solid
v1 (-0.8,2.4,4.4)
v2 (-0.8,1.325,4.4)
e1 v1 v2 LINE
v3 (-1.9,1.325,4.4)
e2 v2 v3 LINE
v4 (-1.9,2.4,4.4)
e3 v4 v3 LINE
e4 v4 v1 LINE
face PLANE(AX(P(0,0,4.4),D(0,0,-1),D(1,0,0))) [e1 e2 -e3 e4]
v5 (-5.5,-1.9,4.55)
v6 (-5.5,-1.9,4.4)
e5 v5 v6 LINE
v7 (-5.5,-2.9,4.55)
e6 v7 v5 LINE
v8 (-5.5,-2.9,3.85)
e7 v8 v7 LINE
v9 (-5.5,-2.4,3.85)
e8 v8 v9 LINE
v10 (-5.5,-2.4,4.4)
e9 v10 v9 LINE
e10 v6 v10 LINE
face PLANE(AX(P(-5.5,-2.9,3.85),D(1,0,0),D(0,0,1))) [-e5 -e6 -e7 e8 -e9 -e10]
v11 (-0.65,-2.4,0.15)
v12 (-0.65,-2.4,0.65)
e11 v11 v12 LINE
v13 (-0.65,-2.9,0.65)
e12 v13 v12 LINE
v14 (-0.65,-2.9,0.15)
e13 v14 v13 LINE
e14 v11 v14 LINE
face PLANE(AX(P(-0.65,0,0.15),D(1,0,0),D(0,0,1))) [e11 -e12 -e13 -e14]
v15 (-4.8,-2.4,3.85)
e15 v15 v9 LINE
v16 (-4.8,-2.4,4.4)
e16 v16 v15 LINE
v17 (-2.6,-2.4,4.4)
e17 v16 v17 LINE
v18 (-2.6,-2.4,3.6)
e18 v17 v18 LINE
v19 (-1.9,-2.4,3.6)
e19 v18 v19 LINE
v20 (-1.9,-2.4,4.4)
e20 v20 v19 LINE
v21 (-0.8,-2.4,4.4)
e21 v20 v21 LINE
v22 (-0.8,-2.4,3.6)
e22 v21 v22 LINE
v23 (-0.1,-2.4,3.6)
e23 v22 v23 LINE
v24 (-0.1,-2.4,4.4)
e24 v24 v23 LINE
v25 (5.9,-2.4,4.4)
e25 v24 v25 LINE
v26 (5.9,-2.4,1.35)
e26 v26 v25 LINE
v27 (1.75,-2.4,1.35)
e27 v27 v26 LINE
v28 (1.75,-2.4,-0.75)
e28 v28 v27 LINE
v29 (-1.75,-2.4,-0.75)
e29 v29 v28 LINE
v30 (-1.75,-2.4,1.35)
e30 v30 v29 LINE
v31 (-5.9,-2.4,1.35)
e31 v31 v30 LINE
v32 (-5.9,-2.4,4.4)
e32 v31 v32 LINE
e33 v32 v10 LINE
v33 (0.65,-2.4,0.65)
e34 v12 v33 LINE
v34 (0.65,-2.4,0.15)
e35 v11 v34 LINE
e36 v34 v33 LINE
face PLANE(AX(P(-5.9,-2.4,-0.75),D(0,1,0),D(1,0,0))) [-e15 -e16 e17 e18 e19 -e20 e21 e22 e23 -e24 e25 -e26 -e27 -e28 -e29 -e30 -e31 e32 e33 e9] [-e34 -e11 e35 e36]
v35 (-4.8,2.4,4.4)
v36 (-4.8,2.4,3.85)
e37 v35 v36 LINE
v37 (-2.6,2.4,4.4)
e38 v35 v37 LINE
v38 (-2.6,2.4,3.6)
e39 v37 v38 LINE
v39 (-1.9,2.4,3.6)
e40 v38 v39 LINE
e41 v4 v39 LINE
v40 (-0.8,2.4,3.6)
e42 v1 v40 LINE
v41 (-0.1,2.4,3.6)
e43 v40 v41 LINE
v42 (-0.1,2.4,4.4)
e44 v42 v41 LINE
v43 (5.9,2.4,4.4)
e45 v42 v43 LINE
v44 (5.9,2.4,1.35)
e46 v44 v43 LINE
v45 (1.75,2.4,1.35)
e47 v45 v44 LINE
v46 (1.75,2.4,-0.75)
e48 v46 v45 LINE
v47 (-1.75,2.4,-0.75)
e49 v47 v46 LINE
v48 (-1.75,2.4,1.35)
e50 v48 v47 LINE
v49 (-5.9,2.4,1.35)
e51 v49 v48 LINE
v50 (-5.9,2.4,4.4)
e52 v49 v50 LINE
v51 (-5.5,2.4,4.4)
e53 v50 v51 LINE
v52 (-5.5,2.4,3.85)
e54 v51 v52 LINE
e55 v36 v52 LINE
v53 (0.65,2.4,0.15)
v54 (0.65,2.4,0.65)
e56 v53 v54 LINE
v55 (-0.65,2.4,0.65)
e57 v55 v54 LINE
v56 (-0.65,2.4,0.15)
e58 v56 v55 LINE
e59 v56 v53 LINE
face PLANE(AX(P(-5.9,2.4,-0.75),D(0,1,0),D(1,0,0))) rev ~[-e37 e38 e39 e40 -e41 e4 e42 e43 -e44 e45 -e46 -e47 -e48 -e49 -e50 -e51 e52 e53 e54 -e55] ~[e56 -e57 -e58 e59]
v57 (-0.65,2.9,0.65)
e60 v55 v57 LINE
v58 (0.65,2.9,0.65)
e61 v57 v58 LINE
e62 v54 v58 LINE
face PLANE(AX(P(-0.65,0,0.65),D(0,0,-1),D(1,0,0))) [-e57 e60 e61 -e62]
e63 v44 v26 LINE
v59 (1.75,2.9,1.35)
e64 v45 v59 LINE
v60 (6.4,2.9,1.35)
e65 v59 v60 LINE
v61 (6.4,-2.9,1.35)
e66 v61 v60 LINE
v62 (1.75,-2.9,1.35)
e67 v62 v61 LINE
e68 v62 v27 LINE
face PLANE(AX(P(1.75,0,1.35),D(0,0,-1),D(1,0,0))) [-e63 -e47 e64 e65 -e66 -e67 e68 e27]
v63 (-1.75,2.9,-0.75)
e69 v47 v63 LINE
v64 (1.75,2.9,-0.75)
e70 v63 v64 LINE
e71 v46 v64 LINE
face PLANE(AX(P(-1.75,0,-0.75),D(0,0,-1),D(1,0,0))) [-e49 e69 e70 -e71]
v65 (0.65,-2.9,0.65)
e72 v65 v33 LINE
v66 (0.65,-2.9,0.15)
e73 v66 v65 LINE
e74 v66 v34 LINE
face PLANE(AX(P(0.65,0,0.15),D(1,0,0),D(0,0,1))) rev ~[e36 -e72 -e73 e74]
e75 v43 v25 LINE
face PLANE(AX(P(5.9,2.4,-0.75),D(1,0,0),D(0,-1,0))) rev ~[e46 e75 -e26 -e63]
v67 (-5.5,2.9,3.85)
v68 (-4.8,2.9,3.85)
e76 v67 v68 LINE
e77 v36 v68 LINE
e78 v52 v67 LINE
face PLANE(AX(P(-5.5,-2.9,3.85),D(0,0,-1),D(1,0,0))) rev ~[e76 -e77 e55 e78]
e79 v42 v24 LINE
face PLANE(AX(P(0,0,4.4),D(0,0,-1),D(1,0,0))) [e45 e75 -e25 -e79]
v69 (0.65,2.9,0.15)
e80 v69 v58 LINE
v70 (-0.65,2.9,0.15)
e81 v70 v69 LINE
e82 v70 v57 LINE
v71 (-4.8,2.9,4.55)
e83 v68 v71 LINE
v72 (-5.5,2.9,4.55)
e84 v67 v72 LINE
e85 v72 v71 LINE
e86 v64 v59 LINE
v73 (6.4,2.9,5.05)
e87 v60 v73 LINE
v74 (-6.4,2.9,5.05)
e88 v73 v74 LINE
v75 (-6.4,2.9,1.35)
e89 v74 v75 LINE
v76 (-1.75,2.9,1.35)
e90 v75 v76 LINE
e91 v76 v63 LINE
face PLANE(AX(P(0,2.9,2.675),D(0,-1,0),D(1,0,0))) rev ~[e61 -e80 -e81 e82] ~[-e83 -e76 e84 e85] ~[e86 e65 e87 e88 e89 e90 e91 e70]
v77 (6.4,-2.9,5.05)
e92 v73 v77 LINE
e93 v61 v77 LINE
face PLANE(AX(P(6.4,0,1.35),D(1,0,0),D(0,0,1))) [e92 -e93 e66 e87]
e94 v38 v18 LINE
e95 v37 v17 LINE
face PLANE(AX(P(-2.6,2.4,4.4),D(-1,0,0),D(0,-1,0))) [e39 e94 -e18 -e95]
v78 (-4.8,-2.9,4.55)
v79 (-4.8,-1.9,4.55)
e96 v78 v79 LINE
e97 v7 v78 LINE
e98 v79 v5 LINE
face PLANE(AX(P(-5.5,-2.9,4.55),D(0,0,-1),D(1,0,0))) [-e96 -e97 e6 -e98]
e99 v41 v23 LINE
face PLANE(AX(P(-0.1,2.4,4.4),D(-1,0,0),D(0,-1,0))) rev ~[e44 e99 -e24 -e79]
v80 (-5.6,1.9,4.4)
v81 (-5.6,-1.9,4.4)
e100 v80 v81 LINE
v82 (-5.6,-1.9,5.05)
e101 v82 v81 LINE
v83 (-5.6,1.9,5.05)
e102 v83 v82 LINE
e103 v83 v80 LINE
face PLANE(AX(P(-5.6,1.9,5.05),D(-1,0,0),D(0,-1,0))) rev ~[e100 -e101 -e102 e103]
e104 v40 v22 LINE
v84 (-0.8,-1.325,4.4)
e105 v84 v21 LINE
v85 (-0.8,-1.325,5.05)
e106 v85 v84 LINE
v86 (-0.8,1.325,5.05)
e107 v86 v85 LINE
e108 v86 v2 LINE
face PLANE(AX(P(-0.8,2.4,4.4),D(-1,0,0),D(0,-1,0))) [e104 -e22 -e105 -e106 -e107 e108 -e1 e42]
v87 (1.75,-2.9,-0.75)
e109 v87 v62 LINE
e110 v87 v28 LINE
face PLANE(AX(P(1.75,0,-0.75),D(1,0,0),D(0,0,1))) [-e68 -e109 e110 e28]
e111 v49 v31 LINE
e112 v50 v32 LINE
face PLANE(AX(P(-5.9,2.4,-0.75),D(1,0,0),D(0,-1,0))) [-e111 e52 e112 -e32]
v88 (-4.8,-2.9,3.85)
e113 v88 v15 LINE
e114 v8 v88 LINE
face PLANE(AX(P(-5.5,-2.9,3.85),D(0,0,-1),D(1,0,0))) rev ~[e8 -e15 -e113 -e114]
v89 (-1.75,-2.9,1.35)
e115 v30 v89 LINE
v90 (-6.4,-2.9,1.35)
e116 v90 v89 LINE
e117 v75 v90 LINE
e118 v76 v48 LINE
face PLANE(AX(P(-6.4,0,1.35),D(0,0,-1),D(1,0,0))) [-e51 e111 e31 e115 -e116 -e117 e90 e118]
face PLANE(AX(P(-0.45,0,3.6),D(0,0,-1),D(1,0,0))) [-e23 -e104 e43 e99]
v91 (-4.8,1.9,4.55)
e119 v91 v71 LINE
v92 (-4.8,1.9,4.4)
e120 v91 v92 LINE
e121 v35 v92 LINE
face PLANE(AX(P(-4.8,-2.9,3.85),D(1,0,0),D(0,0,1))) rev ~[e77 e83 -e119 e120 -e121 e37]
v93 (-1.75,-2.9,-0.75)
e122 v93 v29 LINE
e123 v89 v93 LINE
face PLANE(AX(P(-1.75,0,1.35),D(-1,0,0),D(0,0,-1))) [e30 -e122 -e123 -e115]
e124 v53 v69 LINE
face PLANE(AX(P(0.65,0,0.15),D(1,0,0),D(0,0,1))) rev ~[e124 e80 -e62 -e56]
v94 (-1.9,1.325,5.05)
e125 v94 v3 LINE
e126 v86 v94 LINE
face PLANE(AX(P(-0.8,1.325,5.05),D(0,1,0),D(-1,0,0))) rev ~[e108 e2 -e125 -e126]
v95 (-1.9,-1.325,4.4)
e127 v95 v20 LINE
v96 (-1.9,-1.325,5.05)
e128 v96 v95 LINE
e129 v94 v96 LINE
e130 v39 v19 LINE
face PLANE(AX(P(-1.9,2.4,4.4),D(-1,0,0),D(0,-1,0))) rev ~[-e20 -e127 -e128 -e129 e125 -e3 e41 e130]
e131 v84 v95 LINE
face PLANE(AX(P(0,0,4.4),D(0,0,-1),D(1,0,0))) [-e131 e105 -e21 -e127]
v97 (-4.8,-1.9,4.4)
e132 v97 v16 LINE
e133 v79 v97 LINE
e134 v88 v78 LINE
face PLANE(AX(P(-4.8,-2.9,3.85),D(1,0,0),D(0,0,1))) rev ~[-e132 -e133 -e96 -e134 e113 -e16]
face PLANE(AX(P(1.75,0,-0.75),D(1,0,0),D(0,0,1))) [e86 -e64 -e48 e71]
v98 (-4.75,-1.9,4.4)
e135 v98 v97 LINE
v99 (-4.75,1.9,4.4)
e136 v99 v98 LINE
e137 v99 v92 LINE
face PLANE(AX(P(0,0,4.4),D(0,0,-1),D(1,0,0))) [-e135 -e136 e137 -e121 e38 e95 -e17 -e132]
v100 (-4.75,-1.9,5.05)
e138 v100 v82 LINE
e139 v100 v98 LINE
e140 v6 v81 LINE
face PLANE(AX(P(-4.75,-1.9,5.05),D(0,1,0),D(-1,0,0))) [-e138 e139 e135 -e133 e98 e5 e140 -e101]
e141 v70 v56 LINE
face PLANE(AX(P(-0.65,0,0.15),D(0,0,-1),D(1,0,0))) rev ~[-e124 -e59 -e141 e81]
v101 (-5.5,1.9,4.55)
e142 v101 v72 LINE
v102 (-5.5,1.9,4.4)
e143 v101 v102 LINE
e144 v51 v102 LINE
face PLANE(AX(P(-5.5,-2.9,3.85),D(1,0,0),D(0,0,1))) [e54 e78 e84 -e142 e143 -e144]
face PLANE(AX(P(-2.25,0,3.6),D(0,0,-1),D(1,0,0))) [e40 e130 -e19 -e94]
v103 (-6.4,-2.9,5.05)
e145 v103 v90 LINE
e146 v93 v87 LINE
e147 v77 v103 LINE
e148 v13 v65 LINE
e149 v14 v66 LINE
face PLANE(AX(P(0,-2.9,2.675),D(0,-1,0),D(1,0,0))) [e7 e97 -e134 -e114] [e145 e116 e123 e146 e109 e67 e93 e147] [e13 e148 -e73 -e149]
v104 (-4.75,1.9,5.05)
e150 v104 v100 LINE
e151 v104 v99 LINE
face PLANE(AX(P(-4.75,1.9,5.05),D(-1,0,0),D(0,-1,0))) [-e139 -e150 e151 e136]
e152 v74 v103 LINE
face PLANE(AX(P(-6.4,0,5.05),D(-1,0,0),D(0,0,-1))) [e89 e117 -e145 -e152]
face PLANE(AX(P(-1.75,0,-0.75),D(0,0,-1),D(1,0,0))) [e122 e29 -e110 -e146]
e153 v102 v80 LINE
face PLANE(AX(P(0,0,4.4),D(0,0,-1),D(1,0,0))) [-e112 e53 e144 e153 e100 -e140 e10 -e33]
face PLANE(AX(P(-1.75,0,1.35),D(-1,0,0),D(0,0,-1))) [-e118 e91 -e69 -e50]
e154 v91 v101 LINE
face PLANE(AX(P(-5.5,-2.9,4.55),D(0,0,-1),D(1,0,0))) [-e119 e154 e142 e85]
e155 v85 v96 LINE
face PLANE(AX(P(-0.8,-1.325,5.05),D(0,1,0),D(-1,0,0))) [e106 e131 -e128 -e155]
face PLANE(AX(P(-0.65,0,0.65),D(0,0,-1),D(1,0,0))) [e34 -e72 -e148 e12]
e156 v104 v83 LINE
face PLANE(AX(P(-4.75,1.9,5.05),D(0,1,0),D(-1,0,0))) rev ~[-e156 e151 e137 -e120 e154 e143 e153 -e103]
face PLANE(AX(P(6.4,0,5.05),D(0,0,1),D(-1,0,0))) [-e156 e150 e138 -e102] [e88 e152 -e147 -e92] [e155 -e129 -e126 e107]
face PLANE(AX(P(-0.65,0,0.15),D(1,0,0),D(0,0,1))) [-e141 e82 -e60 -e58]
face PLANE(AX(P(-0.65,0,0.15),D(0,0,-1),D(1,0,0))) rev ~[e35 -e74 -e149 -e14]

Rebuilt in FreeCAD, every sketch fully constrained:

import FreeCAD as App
import Part
import Sketcher

V = App.Vector


def add_polygon(sketch, points):
    """Adds a closed chain of lines whose ends are joined by coincident constraints."""
    first, n = sketch.GeometryCount, len(points)
    for a, b in zip(points, points[1:] + points[:1]):
        sketch.addGeometry(Part.LineSegment(App.Vector(*a, 0), App.Vector(*b, 0)), False)
    for i in range(n):
        sketch.addConstraint(Sketcher.Constraint("Coincident", first + i, 2, first + (i + 1) % n, 1))

doc = App.newDocument("Part")
params = doc.addObject("Spreadsheet::Sheet", "Params")
for row, (alias, value) in enumerate([
    ("sketch1_width", "12.8 mm"),
    ("sketch1_width2", "3.5 mm"),
    ("sketch1_width3", "1.3 mm"),
    ("sketch1_height", "3.7 mm"),
    ("sketch1_height2", "2.1 mm"),
    ("pad1_length", "5.8 mm"),
    ("sketch2_width", "11.8 mm"),
    ("sketch2_height", "4.8 mm"),
    ("pocket1_length", "5.15 mm"),
    ("sketch3_width", "1.1 mm"),
    ("sketch3_height", "2.65 mm"),
    ("pocket2_length", "0.65 mm"),
    ("sketch4_width", "0.7 mm"),
    ("sketch4_height", "4.8 mm"),
    ("pad2_length", "0.8 mm"),
    ("sketch5_height", "3.8 mm"),
    ("sketch5_width", "0.85 mm"),
    ("pocket3_length", "0.65 mm"),
    ("sketch6_width", "0.7 mm"),
], start=1):
    params.set(f"A{row}", alias)
    params.set(f"B{row}", "=" + value)
    params.setAlias(f"B{row}", alias)

body = doc.addObject("PartDesign::Body", "Body")

sketch1 = doc.addObject("Sketcher::SketchObject", "Sketch")
body.addObject(sketch1)
sketch1.AttachmentSupport = (doc.XZ_Plane, [""])
sketch1.MapMode = "FlatFace"
add_polygon(sketch1, [(6.4, 1.4), (6.4, 5), (-6.4, 5), (-6.4, 1.4), (-1.8, 1.4), (-1.8, -0.8), (1.8, -0.8), (1.8, 1.4)])
add_polygon(sketch1, [(0.7, 0.1), (-0.7, 0.1), (-0.7, 0.7), (0.7, 0.7)])
sketch1.addConstraint(Sketcher.Constraint("Vertical", 0))
sketch1.addConstraint(Sketcher.Constraint("Horizontal", 1))
sketch1.addConstraint(Sketcher.Constraint("Vertical", 2))
sketch1.addConstraint(Sketcher.Constraint("Horizontal", 3))
sketch1.addConstraint(Sketcher.Constraint("Vertical", 4))
sketch1.addConstraint(Sketcher.Constraint("Horizontal", 5))
sketch1.addConstraint(Sketcher.Constraint("Vertical", 6))
sketch1.addConstraint(Sketcher.Constraint("Horizontal", 7))
sketch1.addConstraint(Sketcher.Constraint("Horizontal", 8))
sketch1.addConstraint(Sketcher.Constraint("Vertical", 9))
sketch1.addConstraint(Sketcher.Constraint("Horizontal", 10))
sketch1.addConstraint(Sketcher.Constraint("Vertical", 11))
sketch1.addConstraint(Sketcher.Constraint("Symmetric", 3, 2, 6, 2, -2))
sketch1.addConstraint(Sketcher.Constraint("Equal", 3, 7))
sketch1.addConstraint(Sketcher.Constraint("DistanceX", 1, 2, 1, 1, 12.8))
sketch1.addConstraint(Sketcher.Constraint("DistanceX", 5, 1, 5, 2, 3.5))
sketch1.addConstraint(Sketcher.Constraint("DistanceX", 8, 2, 8, 1, 1.3))
sketch1.addConstraint(Sketcher.Constraint("DistanceY", 0, 1, 0, 2, 3.7))
sketch1.addConstraint(Sketcher.Constraint("DistanceY", 4, 2, 4, 1, 2.1))
sketch1.addConstraint(Sketcher.Constraint("DistanceY", 9, 1, 9, 2, 0.5))
sketch1.addConstraint(Sketcher.Constraint("DistanceX", 4, 2, 8, 2, 1.1))
sketch1.addConstraint(Sketcher.Constraint("DistanceY", 4, 2, 8, 2, 0.9))
sketch1.addConstraint(Sketcher.Constraint("DistanceY", -1, 1, 0, 2, 5.05))
sketch1.setExpression("Constraints[26]", "Params.sketch1_width")
sketch1.setExpression("Constraints[27]", "Params.sketch1_width2")
sketch1.setExpression("Constraints[28]", "Params.sketch1_width3")
sketch1.setExpression("Constraints[29]", "Params.sketch1_height")
sketch1.setExpression("Constraints[30]", "Params.sketch1_height2")
pad1 = doc.addObject("PartDesign::Pad", "Pad")
body.addObject(pad1)
pad1.Profile = sketch1
pad1.setExpression("Length", "Params.pad1_length")
pad1.Midplane = True

sketch2 = doc.addObject("Sketcher::SketchObject", "Sketch001")
body.addObject(sketch2)
sketch2.AttachmentSupport = (doc.XY_Plane, [""])
sketch2.MapMode = "FlatFace"
sketch2.AttachmentOffset = App.Placement(V(0, 0, -0.75), App.Rotation())
add_polygon(sketch2, [(-5.9, -2.4), (-5.9, 2.4), (5.9, 2.4), (5.9, -2.4)])
sketch2.addConstraint(Sketcher.Constraint("Vertical", 0))
sketch2.addConstraint(Sketcher.Constraint("Horizontal", 1))
sketch2.addConstraint(Sketcher.Constraint("Vertical", 2))
sketch2.addConstraint(Sketcher.Constraint("Horizontal", 3))
sketch2.addConstraint(Sketcher.Constraint("Symmetric", 0, 2, 2, 2, -1, 1))
sketch2.addConstraint(Sketcher.Constraint("DistanceX", 1, 1, 1, 2, 11.8))
sketch2.addConstraint(Sketcher.Constraint("DistanceY", 0, 1, 0, 2, 4.8))
sketch2.setExpression("Constraints[9]", "Params.sketch2_width")
sketch2.setExpression("Constraints[10]", "Params.sketch2_height")
pocket1 = doc.addObject("PartDesign::Pocket", "Pocket")
body.addObject(pocket1)
pocket1.Profile = sketch2
pocket1.setExpression("Length", "Params.pocket1_length")
pocket1.Reversed = True

sketch3 = doc.addObject("Sketcher::SketchObject", "Sketch002")
body.addObject(sketch3)
sketch3.AttachmentSupport = (doc.XY_Plane, [""])
sketch3.MapMode = "FlatFace"
sketch3.AttachmentOffset = App.Placement(V(0, 0, 5.05), App.Rotation())
add_polygon(sketch3, [(-0.8, -1.3), (-0.8, 1.3), (-1.9, 1.3), (-1.9, -1.3)])
sketch3.addConstraint(Sketcher.Constraint("Vertical", 0))
sketch3.addConstraint(Sketcher.Constraint("Horizontal", 1))
sketch3.addConstraint(Sketcher.Constraint("Vertical", 2))
sketch3.addConstraint(Sketcher.Constraint("Horizontal", 3))
sketch3.addConstraint(Sketcher.Constraint("DistanceX", 1, 2, 1, 1, 1.1))
sketch3.addConstraint(Sketcher.Constraint("DistanceY", 0, 1, 0, 2, 2.65))
sketch3.addConstraint(Sketcher.Constraint("DistanceX", 0, 2, -1, 1, 0.8))
sketch3.addConstraint(Sketcher.Constraint("DistanceY", -1, 1, 0, 2, 1.325))
sketch3.setExpression("Constraints[8]", "Params.sketch3_width")
sketch3.setExpression("Constraints[9]", "Params.sketch3_height")
pocket2 = doc.addObject("PartDesign::Pocket", "Pocket001")
body.addObject(pocket2)
pocket2.Profile = sketch3
pocket2.setExpression("Length", "Params.pocket2_length")

sketch4 = doc.addObject("Sketcher::SketchObject", "Sketch003")
body.addObject(sketch4)
sketch4.AttachmentSupport = (doc.XY_Plane, [""])
sketch4.MapMode = "FlatFace"
sketch4.AttachmentOffset = App.Placement(V(0, 0, 4.4), App.Rotation())
add_polygon(sketch4, [(-2.6, -2.4), (-2.6, 2.4), (-1.9, 2.4), (-1.9, -2.4)])
add_polygon(sketch4, [(-0.8, -2.4), (-0.8, 2.4), (-0.1, 2.4), (-0.1, -2.4)])
sketch4.addConstraint(Sketcher.Constraint("Vertical", 0))
sketch4.addConstraint(Sketcher.Constraint("Horizontal", 1))
sketch4.addConstraint(Sketcher.Constraint("Vertical", 2))
sketch4.addConstraint(Sketcher.Constraint("Horizontal", 3))
sketch4.addConstraint(Sketcher.Constraint("Vertical", 4))
sketch4.addConstraint(Sketcher.Constraint("Horizontal", 5))
sketch4.addConstraint(Sketcher.Constraint("Vertical", 6))
sketch4.addConstraint(Sketcher.Constraint("Horizontal", 7))
sketch4.addConstraint(Sketcher.Constraint("Horizontal", 1, 2, 4, 2))
sketch4.addConstraint(Sketcher.Constraint("Horizontal", 3, 2, 6, 2))
sketch4.addConstraint(Sketcher.Constraint("Equal", 3, 5))
sketch4.addConstraint(Sketcher.Constraint("DistanceX", 1, 1, 1, 2, 0.7))
sketch4.addConstraint(Sketcher.Constraint("DistanceY", 0, 1, 0, 2, 4.8))
sketch4.addConstraint(Sketcher.Constraint("DistanceX", 0, 2, -1, 1, 2.6))
sketch4.addConstraint(Sketcher.Constraint("DistanceY", -1, 1, 0, 2, 2.4))
sketch4.addConstraint(Sketcher.Constraint("DistanceX", 4, 2, -1, 1, 0.8))
sketch4.setExpression("Constraints[19]", "Params.sketch4_width")
sketch4.setExpression("Constraints[20]", "Params.sketch4_height")
pad2 = doc.addObject("PartDesign::Pad", "Pad001")
body.addObject(pad2)
pad2.Profile = sketch4
pad2.setExpression("Length", "Params.pad2_length")
pad2.Reversed = True

sketch5 = doc.addObject("Sketcher::SketchObject", "Sketch004")
body.addObject(sketch5)
sketch5.AttachmentSupport = (doc.XY_Plane, [""])
sketch5.MapMode = "FlatFace"
sketch5.AttachmentOffset = App.Placement(V(0, 0, 5.05), App.Rotation())
add_polygon(sketch5, [(-4.8, -1.9), (-4.8, 1.9), (-5.6, 1.9), (-5.6, -1.9)])
sketch5.addConstraint(Sketcher.Constraint("Vertical", 0))
sketch5.addConstraint(Sketcher.Constraint("Horizontal", 1))
sketch5.addConstraint(Sketcher.Constraint("Vertical", 2))
sketch5.addConstraint(Sketcher.Constraint("Horizontal", 3))
sketch5.addConstraint(Sketcher.Constraint("DistanceY", 0, 1, 0, 2, 3.8))
sketch5.addConstraint(Sketcher.Constraint("DistanceX", 1, 2, 1, 1, 0.85))
sketch5.addConstraint(Sketcher.Constraint("DistanceY", -1, 1, 0, 2, 1.9))
sketch5.addConstraint(Sketcher.Constraint("DistanceX", 1, 2, -1, 1, 5.6))
sketch5.setExpression("Constraints[8]", "Params.sketch5_height")
sketch5.setExpression("Constraints[9]", "Params.sketch5_width")
pocket3 = doc.addObject("PartDesign::Pocket", "Pocket002")
body.addObject(pocket3)
pocket3.Profile = sketch5
pocket3.setExpression("Length", "Params.pocket3_length")

sketch6 = doc.addObject("Sketcher::SketchObject", "Sketch005")
body.addObject(sketch6)
sketch6.AttachmentSupport = (doc.XZ_Plane, [""])
sketch6.MapMode = "FlatFace"
sketch6.AttachmentOffset = App.Placement(V(0, 0, 2.9), App.Rotation())
add_polygon(sketch6, [(-5.5, 4.5), (-5.5, 3.9), (-4.8, 3.9), (-4.8, 4.5)])
sketch6.addConstraint(Sketcher.Constraint("Vertical", 0))
sketch6.addConstraint(Sketcher.Constraint("Horizontal", 1))
sketch6.addConstraint(Sketcher.Constraint("Vertical", 2))
sketch6.addConstraint(Sketcher.Constraint("Horizontal", 3))
sketch6.addConstraint(Sketcher.Constraint("Equal", 3, 0))
sketch6.addConstraint(Sketcher.Constraint("DistanceX", 1, 1, 1, 2, 0.7))
sketch6.addConstraint(Sketcher.Constraint("DistanceX", 0, 2, -1, 1, 5.5))
sketch6.addConstraint(Sketcher.Constraint("DistanceY", -1, 1, 0, 2, 3.85))
sketch6.setExpression("Constraints[9]", "Params.sketch6_width")
pocket4 = doc.addObject("PartDesign::Pocket", "Pocket003")
body.addObject(pocket4)
pocket4.Profile = sketch6
pocket4.Type = "ThroughAll"

doc.recompute()
